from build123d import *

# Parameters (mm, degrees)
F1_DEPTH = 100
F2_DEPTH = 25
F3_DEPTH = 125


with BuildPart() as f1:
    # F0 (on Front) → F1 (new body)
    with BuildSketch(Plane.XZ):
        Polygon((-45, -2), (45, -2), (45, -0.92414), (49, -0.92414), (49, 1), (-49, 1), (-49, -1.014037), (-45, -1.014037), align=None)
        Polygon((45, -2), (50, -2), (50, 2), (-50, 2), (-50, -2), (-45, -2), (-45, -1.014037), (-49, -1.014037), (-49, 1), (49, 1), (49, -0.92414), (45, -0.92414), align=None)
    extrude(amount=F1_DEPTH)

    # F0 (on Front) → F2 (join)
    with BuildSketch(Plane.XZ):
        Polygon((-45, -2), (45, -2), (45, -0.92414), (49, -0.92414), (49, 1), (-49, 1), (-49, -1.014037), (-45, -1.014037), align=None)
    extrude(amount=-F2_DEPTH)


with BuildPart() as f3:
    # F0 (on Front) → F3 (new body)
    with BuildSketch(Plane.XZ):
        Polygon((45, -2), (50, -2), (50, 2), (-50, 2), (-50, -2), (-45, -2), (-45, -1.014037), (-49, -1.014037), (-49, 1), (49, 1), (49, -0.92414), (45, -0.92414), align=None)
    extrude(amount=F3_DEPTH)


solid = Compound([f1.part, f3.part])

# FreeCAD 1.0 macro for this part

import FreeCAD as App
import Part
import Sketcher
from FreeCAD import Vector
Q = App.Units.Quantity

doc = App.newDocument("Part")
body = doc.addObject("PartDesign::Body", "Body")

sketch1 = doc.addObject("Sketcher::SketchObject", "Sketch")
body.addObject(sketch1)
sketch1.AttachmentSupport = (doc.XZ_Plane, [""])
sketch1.MapMode = "FlatFace"
sketch1.addGeometry([
    Part.LineSegment(Vector(50, -2, 0), Vector(50, 2, 0)),
    Part.LineSegment(Vector(50, 2, 0), Vector(-50, 2, 0)),
    Part.LineSegment(Vector(-50, 2, 0), Vector(-50, -2, 0)),
    Part.LineSegment(Vector(-50, -2, 0), Vector(50, -2, 0)),
], False)
sketch1.addConstraint([
    Sketcher.Constraint("Coincident", 0, 2, 1, 1),
    Sketcher.Constraint("Coincident", 1, 2, 2, 1),
    Sketcher.Constraint("Coincident", 2, 2, 3, 1),
    Sketcher.Constraint("Coincident", 3, 2, 0, 1),
    Sketcher.Constraint("Vertical", 0),
    Sketcher.Constraint("Horizontal", 1),
    Sketcher.Constraint("Vertical", 2),
    Sketcher.Constraint("Horizontal", 3),
    Sketcher.Constraint("Symmetric", 0, 2, 2, 2, -1, 1),
    Sketcher.Constraint("DistanceX", 1, 2, 1, 1, Q("100 mm")),
    Sketcher.Constraint("DistanceY", 0, 1, 0, 2, Q("4 mm")),
])
pad1 = doc.addObject("PartDesign::Pad", "Pad")
body.addObject(pad1)
pad1.Profile = sketch1
pad1.Length = 100

sketch2 = doc.addObject("Sketcher::SketchObject", "Sketch001")
body.addObject(sketch2)
sketch2.AttachmentSupport = (doc.XZ_Plane, [""])
sketch2.MapMode = "FlatFace"
sketch2.addGeometry([
    Part.LineSegment(Vector(-45, -2, 0), Vector(45, -2, 0)),
    Part.LineSegment(Vector(45, -2, 0), Vector(45, -0.92414, 0)),
    Part.LineSegment(Vector(45, -0.92414, 0), Vector(49, -0.92414, 0)),
    Part.LineSegment(Vector(49, -0.92414, 0), Vector(49, 1, 0)),
    Part.LineSegment(Vector(49, 1, 0), Vector(-49, 1, 0)),
    Part.LineSegment(Vector(-49, 1, 0), Vector(-49, -1.014037, 0)),
    Part.LineSegment(Vector(-49, -1.014037, 0), Vector(-45, -1.014037, 0)),
    Part.LineSegment(Vector(-45, -1.014037, 0), Vector(-45, -2, 0)),
], False)
sketch2.addConstraint([
    Sketcher.Constraint("Coincident", 0, 2, 1, 1),
    Sketcher.Constraint("Coincident", 1, 2, 2, 1),
    Sketcher.Constraint("Coincident", 2, 2, 3, 1),
    Sketcher.Constraint("Coincident", 3, 2, 4, 1),
    Sketcher.Constraint("Coincident", 4, 2, 5, 1),
    Sketcher.Constraint("Coincident", 5, 2, 6, 1),
    Sketcher.Constraint("Coincident", 6, 2, 7, 1),
    Sketcher.Constraint("Coincident", 7, 2, 0, 1),
    Sketcher.Constraint("Horizontal", 0),
    Sketcher.Constraint("Vertical", 1),
    Sketcher.Constraint("Horizontal", 2),
    Sketcher.Constraint("Vertical", 3),
    Sketcher.Constraint("Horizontal", 4),
    Sketcher.Constraint("Vertical", 5),
    Sketcher.Constraint("Horizontal", 6),
    Sketcher.Constraint("Vertical", 7),
    Sketcher.Constraint("Equal", 2, 6),
    Sketcher.Constraint("DistanceX", 0, 1, 0, 2, Q("90 mm")),
    Sketcher.Constraint("DistanceX", 2, 1, 2, 2, Q("4 mm")),
    Sketcher.Constraint("DistanceX", -1, 1, 0, 2, Q("45 mm")),
    Sketcher.Constraint("DistanceY", 0, 2, -1, 1, Q("2 mm")),
    Sketcher.Constraint("DistanceY", -1, 1, 3, 2, Q("1 mm")),
    Sketcher.Constraint("DistanceY", 1, 1, 1, 2, Q("1.07586 mm")),
    Sketcher.Constraint("DistanceY", 5, 2, 5, 1, Q("2.014037 mm")),
])
pad2 = doc.addObject("PartDesign::Pad", "Pad001")
body.addObject(pad2)
pad2.Profile = sketch2
pad2.Length = 25
pad2.Reversed = True
body2 = doc.addObject("PartDesign::Body", "Body001")

sketch3 = doc.addObject("Sketcher::SketchObject", "Sketch002")
body2.addObject(sketch3)
sketch3.AttachmentSupport = (doc.getObject("XZ_Plane001"), [""])
sketch3.MapMode = "FlatFace"
sketch3.addGeometry([
    Part.LineSegment(Vector(45, -2, 0), Vector(50, -2, 0)),
    Part.LineSegment(Vector(50, -2, 0), Vector(50, 2, 0)),
    Part.LineSegment(Vector(50, 2, 0), Vector(-50, 2, 0)),
    Part.LineSegment(Vector(-50, 2, 0), Vector(-50, -2, 0)),
    Part.LineSegment(Vector(-50, -2, 0), Vector(-45, -2, 0)),
    Part.LineSegment(Vector(-45, -2, 0), Vector(-45, -1.014037, 0)),
    Part.LineSegment(Vector(-45, -1.014037, 0), Vector(-49, -1.014037, 0)),
    Part.LineSegment(Vector(-49, -1.014037, 0), Vector(-49, 1, 0)),
    Part.LineSegment(Vector(-49, 1, 0), Vector(49, 1, 0)),
    Part.LineSegment(Vector(49, 1, 0), Vector(49, -0.92414, 0)),
    Part.LineSegment(Vector(49, -0.92414, 0), Vector(45, -0.92414, 0)),
    Part.LineSegment(Vector(45, -0.92414, 0), Vector(45, -2, 0)),
], False)
sketch3.addConstraint([
    Sketcher.Constraint("Coincident", 0, 2, 1, 1),
    Sketcher.Constraint("Coincident", 1, 2, 2, 1),
    Sketcher.Constraint("Coincident", 2, 2, 3, 1),
    Sketcher.Constraint("Coincident", 3, 2, 4, 1),
    Sketcher.Constraint("Coincident", 4, 2, 5, 1),
    Sketcher.Constraint("Coincident", 5, 2, 6, 1),
    Sketcher.Constraint("Coincident", 6, 2, 7, 1),
    Sketcher.Constraint("Coincident", 7, 2, 8, 1),
    Sketcher.Constraint("Coincident", 8, 2, 9, 1),
    Sketcher.Constraint("Coincident", 9, 2, 10, 1),
    Sketcher.Constraint("Coincident", 10, 2, 11, 1),
    Sketcher.Constraint("Coincident", 11, 2, 0, 1),
    Sketcher.Constraint("Horizontal", 0),
    Sketcher.Constraint("Vertical", 1),
    Sketcher.Constraint("Horizontal", 2),
    Sketcher.Constraint("Vertical", 3),
    Sketcher.Constraint("Horizontal", 4),
    Sketcher.Constraint("Vertical", 5),
    Sketcher.Constraint("Horizontal", 6),
    Sketcher.Constraint("Vertical", 7),
    Sketcher.Constraint("Horizontal", 8),
    Sketcher.Constraint("Vertical", 9),
    Sketcher.Constraint("Horizontal", 10),
    Sketcher.Constraint("Vertical", 11),
    Sketcher.Constraint("Symmetric", 0, 2, 2, 2, -1, 1),
    Sketcher.Constraint("Symmetric", 4, 2, 11, 2, -2),
    Sketcher.Constraint("Equal", 6, 10),
    Sketcher.Constraint("Equal", 10, 1),
    Sketcher.Constraint("DistanceX", 0, 1, 0, 2, Q("5 mm")),
    Sketcher.Constraint("DistanceX", 2, 2, 2, 1, Q("100 mm")),
    Sketcher.Constraint("DistanceX", 6, 2, 6, 1, Q("4 mm")),
    Sketcher.Constraint("DistanceY", -1, 1, 7, 2, Q("1 mm")),
    Sketcher.Constraint("DistanceY", 9, 2, 9, 1, Q("1.92414 mm")),
    Sketcher.Constraint("DistanceY", 5, 1, 5, 2, Q("0.985963 mm")),
])
pad3 = doc.addObject("PartDesign::Pad", "Pad002")
body2.addObject(pad3)
pad3.Profile = sketch3
pad3.Length = 125

doc.recompute()
